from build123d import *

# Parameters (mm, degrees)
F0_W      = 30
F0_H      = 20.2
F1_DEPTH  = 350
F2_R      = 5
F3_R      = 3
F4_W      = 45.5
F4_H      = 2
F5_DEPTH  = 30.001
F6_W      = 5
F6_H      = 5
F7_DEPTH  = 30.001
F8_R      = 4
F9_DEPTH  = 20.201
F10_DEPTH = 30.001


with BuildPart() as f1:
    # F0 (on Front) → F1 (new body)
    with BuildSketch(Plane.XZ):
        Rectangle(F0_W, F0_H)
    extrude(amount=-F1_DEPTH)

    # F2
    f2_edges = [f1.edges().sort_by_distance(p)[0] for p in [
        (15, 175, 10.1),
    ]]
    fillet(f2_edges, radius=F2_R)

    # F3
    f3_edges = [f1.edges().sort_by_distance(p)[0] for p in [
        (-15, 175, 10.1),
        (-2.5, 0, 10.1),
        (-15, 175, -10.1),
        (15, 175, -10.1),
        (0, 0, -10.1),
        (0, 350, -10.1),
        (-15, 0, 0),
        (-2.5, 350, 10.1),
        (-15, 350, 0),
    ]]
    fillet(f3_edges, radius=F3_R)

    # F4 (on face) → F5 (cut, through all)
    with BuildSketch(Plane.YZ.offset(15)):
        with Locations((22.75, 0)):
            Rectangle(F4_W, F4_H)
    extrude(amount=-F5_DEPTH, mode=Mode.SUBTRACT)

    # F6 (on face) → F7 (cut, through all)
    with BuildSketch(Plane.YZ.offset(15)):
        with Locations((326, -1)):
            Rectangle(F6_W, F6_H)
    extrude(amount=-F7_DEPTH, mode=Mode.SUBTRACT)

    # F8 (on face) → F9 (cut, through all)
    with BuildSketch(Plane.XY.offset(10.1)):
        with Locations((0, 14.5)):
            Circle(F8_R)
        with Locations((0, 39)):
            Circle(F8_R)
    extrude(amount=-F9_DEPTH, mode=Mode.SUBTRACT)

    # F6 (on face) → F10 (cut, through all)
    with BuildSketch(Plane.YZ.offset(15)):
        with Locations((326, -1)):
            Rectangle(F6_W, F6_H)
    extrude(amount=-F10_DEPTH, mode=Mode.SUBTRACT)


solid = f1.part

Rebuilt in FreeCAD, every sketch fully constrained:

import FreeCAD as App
import Part
import Sketcher


def edges_at(feature, points):
    """Names of the edges that pass closest to the given points."""
    edges = feature.Shape.Edges
    near = lambda p: min(range(len(edges)), key=lambda i: edges[i].distToShape(Part.Vertex(*p))[0])
    return sorted({f"Edge{near(p) + 1}" for p in points})

doc = App.newDocument("Part")
body = doc.addObject("PartDesign::Body", "Body")

# Sketch on XZ plane
sketch1 = doc.addObject("Sketcher::SketchObject", "Sketch")
body.addObject(sketch1)
sketch1.AttachmentSupport = (doc.XZ_Plane, [""])
sketch1.MapMode = "FlatFace"
sketch1.addGeometry(Part.LineSegment(App.Vector(-15, 10, 0), App.Vector(-15, -10, 0)), False)
sketch1.addGeometry(Part.LineSegment(App.Vector(-15, -10, 0), App.Vector(15, -10, 0)), False)
sketch1.addGeometry(Part.LineSegment(App.Vector(15, -10, 0), App.Vector(15, 10, 0)), False)
sketch1.addGeometry(Part.LineSegment(App.Vector(15, 10, 0), App.Vector(-15, 10, 0)), False)
sketch1.addConstraint(Sketcher.Constraint("Coincident", 0, 2, 1, 1))
sketch1.addConstraint(Sketcher.Constraint("Coincident", 1, 2, 2, 1))
sketch1.addConstraint(Sketcher.Constraint("Coincident", 2, 2, 3, 1))
sketch1.addConstraint(Sketcher.Constraint("Coincident", 3, 2, 0, 1))
sketch1.addConstraint(Sketcher.Constraint("Vertical", 0))
sketch1.addConstraint(Sketcher.Constraint("Horizontal", 1))
sketch1.addConstraint(Sketcher.Constraint("Vertical", 2))
sketch1.addConstraint(Sketcher.Constraint("Horizontal", 3))
sketch1.addConstraint(Sketcher.Constraint("Symmetric", 0, 2, 2, 2, -1, 1))
sketch1.addConstraint(Sketcher.Constraint("DistanceX", 1, 1, 1, 2, 30.0))
sketch1.addConstraint(Sketcher.Constraint("DistanceY", 0, 2, 0, 1, 20.2))
pad1 = doc.addObject("PartDesign::Pad", "Pad")
body.addObject(pad1)
pad1.Profile = sketch1
pad1.Length = 350
pad1.Reversed = True
doc.recompute()

fillet = doc.addObject("PartDesign::Fillet", "Fillet")
body.addObject(fillet)
fillet.Base = (pad1, edges_at(pad1, [(15, 175, 10.1)]))
fillet.Radius = 5
doc.recompute()

fillet2 = doc.addObject("PartDesign::Fillet", "Fillet001")
body.addObject(fillet2)
fillet2.Base = (fillet, edges_at(fillet, [
    (-15, 175, 10.1),
    (-2.5, 0, 10.1),
    (-15, 175, -10.1),
    (15, 175, -10.1),
    (0, 0, -10.1),
    (0, 350, -10.1),
    (-15, 0, 0),
    (-2.5, 350, 10.1),
    (-15, 350, 0),
]))
fillet2.Radius = 3

# Sketch on YZ plane
sketch2 = doc.addObject("Sketcher::SketchObject", "Sketch001")
body.addObject(sketch2)
sketch2.AttachmentSupport = (doc.YZ_Plane, [""])
sketch2.MapMode = "FlatFace"
sketch2.AttachmentOffset = App.Placement(App.Vector(0, 0, 15), App.Rotation())
sketch2.addGeometry(Part.LineSegment(App.Vector(0, 1, 0), App.Vector(0, -1, 0)), False)
sketch2.addGeometry(Part.LineSegment(App.Vector(0, -1, 0), App.Vector(45.5, -1, 0)), False)
sketch2.addGeometry(Part.LineSegment(App.Vector(45.5, -1, 0), App.Vector(45.5, 1, 0)), False)
sketch2.addGeometry(Part.LineSegment(App.Vector(45.5, 1, 0), App.Vector(0, 1, 0)), False)
sketch2.addConstraint(Sketcher.Constraint("Coincident", 0, 2, 1, 1))
sketch2.addConstraint(Sketcher.Constraint("Coincident", 1, 2, 2, 1))
sketch2.addConstraint(Sketcher.Constraint("Coincident", 2, 2, 3, 1))
sketch2.addConstraint(Sketcher.Constraint("Coincident", 3, 2, 0, 1))
sketch2.addConstraint(Sketcher.Constraint("Vertical", 0))
sketch2.addConstraint(Sketcher.Constraint("Horizontal", 1))
sketch2.addConstraint(Sketcher.Constraint("Vertical", 2))
sketch2.addConstraint(Sketcher.Constraint("Horizontal", 3))
sketch2.addConstraint(Sketcher.Constraint("Symmetric", 0, 2, 3, 2, -1, 1))
sketch2.addConstraint(Sketcher.Constraint("DistanceY", 0, 2, 0, 1, 2.0))
sketch2.addConstraint(Sketcher.Constraint("DistanceX", 1, 1, 1, 2, 45.5))
pocket1 = doc.addObject("PartDesign::Pocket", "Pocket")
body.addObject(pocket1)
pocket1.Profile = sketch2
pocket1.Type = "ThroughAll"

# Sketch on YZ plane
sketch3 = doc.addObject("Sketcher::SketchObject", "Sketch002")
body.addObject(sketch3)
sketch3.AttachmentSupport = (doc.YZ_Plane, [""])
sketch3.MapMode = "FlatFace"
sketch3.AttachmentOffset = App.Placement(App.Vector(0, 0, 15), App.Rotation())
sketch3.addGeometry(Part.LineSegment(App.Vector(324, 2, 0), App.Vector(324, -4, 0)), False)
sketch3.addGeometry(Part.LineSegment(App.Vector(324, -4, 0), App.Vector(328, -4, 0)), False)
sketch3.addGeometry(Part.LineSegment(App.Vector(328, -4, 0), App.Vector(328, 2, 0)), False)
sketch3.addGeometry(Part.LineSegment(App.Vector(328, 2, 0), App.Vector(324, 2, 0)), False)
sketch3.addConstraint(Sketcher.Constraint("Coincident", 0, 2, 1, 1))
sketch3.addConstraint(Sketcher.Constraint("Coincident", 1, 2, 2, 1))
sketch3.addConstraint(Sketcher.Constraint("Coincident", 2, 2, 3, 1))
sketch3.addConstraint(Sketcher.Constraint("Coincident", 3, 2, 0, 1))
sketch3.addConstraint(Sketcher.Constraint("Vertical", 0))
sketch3.addConstraint(Sketcher.Constraint("Horizontal", 1))
sketch3.addConstraint(Sketcher.Constraint("Vertical", 2))
sketch3.addConstraint(Sketcher.Constraint("Horizontal", 3))
sketch3.addConstraint(Sketcher.Constraint("Equal", 3, 0))
sketch3.addConstraint(Sketcher.Constraint("DistanceX", 1, 1, 1, 2, 5.0))
sketch3.addConstraint(Sketcher.Constraint("DistanceX", -1, 1, 0, 2, 323.5))
sketch3.addConstraint(Sketcher.Constraint("DistanceY", 0, 2, -1, 1, 3.5))
pocket2 = doc.addObject("PartDesign::Pocket", "Pocket001")
body.addObject(pocket2)
pocket2.Profile = sketch3
pocket2.Type = "ThroughAll"

# Sketch on XY plane
sketch4 = doc.addObject("Sketcher::SketchObject", "Sketch003")
body.addObject(sketch4)
sketch4.AttachmentSupport = (doc.XY_Plane, [""])
sketch4.MapMode = "FlatFace"
sketch4.AttachmentOffset = App.Placement(App.Vector(0, 0, 10.1), App.Rotation())
sketch4.addGeometry(Part.Circle(App.Vector(0, 14.5, 0), App.Vector(0, 0, 1), 4), False)
sketch4.addGeometry(Part.Circle(App.Vector(0, 39, 0), App.Vector(0, 0, 1), 4), False)
sketch4.addConstraint(Sketcher.Constraint("Equal", 0, 1))
sketch4.addConstraint(Sketcher.Constraint("PointOnObject", 0, 3, -2))
sketch4.addConstraint(Sketcher.Constraint("PointOnObject", 1, 3, -2))
sketch4.addConstraint(Sketcher.Constraint("Diameter", 0, 8.0))
sketch4.addConstraint(Sketcher.Constraint("DistanceY", -1, 1, 1, 3, 39.0))
sketch4.addConstraint(Sketcher.Constraint("DistanceY", -1, 1, 0, 3, 14.5))
pocket3 = doc.addObject("PartDesign::Pocket", "Pocket002")
body.addObject(pocket3)
pocket3.Profile = sketch4
pocket3.Type = "ThroughAll"

# Sketch on YZ plane
sketch5 = doc.addObject("Sketcher::SketchObject", "Sketch004")
body.addObject(sketch5)
sketch5.AttachmentSupport = (doc.YZ_Plane, [""])
sketch5.MapMode = "FlatFace"
sketch5.AttachmentOffset = App.Placement(App.Vector(0, 0, 15), App.Rotation())
sketch5.addGeometry(Part.LineSegment(App.Vector(324, 2, 0), App.Vector(324, -4, 0)), False)
sketch5.addGeometry(Part.LineSegment(App.Vector(324, -4, 0), App.Vector(328, -4, 0)), False)
sketch5.addGeometry(Part.LineSegment(App.Vector(328, -4, 0), App.Vector(328, 2, 0)), False)
sketch5.addGeometry(Part.LineSegment(App.Vector(328, 2, 0), App.Vector(324, 2, 0)), False)
sketch5.addConstraint(Sketcher.Constraint("Coincident", 0, 2, 1, 1))
sketch5.addConstraint(Sketcher.Constraint("Coincident", 1, 2, 2, 1))
sketch5.addConstraint(Sketcher.Constraint("Coincident", 2, 2, 3, 1))
sketch5.addConstraint(Sketcher.Constraint("Coincident", 3, 2, 0, 1))
sketch5.addConstraint(Sketcher.Constraint("Vertical", 0))
sketch5.addConstraint(Sketcher.Constraint("Horizontal", 1))
sketch5.addConstraint(Sketcher.Constraint("Vertical", 2))
sketch5.addConstraint(Sketcher.Constraint("Horizontal", 3))
sketch5.addConstraint(Sketcher.Constraint("Equal", 3, 0))
sketch5.addConstraint(Sketcher.Constraint("DistanceX", 1, 1, 1, 2, 5.0))
sketch5.addConstraint(Sketcher.Constraint("DistanceX", -1, 1, 0, 2, 323.5))
sketch5.addConstraint(Sketcher.Constraint("DistanceY", 0, 2, -1, 1, 3.5))
pocket4 = doc.addObject("PartDesign::Pocket", "Pocket003")
body.addObject(pocket4)
pocket4.Profile = sketch5
pocket4.Type = "ThroughAll"

doc.recompute()
